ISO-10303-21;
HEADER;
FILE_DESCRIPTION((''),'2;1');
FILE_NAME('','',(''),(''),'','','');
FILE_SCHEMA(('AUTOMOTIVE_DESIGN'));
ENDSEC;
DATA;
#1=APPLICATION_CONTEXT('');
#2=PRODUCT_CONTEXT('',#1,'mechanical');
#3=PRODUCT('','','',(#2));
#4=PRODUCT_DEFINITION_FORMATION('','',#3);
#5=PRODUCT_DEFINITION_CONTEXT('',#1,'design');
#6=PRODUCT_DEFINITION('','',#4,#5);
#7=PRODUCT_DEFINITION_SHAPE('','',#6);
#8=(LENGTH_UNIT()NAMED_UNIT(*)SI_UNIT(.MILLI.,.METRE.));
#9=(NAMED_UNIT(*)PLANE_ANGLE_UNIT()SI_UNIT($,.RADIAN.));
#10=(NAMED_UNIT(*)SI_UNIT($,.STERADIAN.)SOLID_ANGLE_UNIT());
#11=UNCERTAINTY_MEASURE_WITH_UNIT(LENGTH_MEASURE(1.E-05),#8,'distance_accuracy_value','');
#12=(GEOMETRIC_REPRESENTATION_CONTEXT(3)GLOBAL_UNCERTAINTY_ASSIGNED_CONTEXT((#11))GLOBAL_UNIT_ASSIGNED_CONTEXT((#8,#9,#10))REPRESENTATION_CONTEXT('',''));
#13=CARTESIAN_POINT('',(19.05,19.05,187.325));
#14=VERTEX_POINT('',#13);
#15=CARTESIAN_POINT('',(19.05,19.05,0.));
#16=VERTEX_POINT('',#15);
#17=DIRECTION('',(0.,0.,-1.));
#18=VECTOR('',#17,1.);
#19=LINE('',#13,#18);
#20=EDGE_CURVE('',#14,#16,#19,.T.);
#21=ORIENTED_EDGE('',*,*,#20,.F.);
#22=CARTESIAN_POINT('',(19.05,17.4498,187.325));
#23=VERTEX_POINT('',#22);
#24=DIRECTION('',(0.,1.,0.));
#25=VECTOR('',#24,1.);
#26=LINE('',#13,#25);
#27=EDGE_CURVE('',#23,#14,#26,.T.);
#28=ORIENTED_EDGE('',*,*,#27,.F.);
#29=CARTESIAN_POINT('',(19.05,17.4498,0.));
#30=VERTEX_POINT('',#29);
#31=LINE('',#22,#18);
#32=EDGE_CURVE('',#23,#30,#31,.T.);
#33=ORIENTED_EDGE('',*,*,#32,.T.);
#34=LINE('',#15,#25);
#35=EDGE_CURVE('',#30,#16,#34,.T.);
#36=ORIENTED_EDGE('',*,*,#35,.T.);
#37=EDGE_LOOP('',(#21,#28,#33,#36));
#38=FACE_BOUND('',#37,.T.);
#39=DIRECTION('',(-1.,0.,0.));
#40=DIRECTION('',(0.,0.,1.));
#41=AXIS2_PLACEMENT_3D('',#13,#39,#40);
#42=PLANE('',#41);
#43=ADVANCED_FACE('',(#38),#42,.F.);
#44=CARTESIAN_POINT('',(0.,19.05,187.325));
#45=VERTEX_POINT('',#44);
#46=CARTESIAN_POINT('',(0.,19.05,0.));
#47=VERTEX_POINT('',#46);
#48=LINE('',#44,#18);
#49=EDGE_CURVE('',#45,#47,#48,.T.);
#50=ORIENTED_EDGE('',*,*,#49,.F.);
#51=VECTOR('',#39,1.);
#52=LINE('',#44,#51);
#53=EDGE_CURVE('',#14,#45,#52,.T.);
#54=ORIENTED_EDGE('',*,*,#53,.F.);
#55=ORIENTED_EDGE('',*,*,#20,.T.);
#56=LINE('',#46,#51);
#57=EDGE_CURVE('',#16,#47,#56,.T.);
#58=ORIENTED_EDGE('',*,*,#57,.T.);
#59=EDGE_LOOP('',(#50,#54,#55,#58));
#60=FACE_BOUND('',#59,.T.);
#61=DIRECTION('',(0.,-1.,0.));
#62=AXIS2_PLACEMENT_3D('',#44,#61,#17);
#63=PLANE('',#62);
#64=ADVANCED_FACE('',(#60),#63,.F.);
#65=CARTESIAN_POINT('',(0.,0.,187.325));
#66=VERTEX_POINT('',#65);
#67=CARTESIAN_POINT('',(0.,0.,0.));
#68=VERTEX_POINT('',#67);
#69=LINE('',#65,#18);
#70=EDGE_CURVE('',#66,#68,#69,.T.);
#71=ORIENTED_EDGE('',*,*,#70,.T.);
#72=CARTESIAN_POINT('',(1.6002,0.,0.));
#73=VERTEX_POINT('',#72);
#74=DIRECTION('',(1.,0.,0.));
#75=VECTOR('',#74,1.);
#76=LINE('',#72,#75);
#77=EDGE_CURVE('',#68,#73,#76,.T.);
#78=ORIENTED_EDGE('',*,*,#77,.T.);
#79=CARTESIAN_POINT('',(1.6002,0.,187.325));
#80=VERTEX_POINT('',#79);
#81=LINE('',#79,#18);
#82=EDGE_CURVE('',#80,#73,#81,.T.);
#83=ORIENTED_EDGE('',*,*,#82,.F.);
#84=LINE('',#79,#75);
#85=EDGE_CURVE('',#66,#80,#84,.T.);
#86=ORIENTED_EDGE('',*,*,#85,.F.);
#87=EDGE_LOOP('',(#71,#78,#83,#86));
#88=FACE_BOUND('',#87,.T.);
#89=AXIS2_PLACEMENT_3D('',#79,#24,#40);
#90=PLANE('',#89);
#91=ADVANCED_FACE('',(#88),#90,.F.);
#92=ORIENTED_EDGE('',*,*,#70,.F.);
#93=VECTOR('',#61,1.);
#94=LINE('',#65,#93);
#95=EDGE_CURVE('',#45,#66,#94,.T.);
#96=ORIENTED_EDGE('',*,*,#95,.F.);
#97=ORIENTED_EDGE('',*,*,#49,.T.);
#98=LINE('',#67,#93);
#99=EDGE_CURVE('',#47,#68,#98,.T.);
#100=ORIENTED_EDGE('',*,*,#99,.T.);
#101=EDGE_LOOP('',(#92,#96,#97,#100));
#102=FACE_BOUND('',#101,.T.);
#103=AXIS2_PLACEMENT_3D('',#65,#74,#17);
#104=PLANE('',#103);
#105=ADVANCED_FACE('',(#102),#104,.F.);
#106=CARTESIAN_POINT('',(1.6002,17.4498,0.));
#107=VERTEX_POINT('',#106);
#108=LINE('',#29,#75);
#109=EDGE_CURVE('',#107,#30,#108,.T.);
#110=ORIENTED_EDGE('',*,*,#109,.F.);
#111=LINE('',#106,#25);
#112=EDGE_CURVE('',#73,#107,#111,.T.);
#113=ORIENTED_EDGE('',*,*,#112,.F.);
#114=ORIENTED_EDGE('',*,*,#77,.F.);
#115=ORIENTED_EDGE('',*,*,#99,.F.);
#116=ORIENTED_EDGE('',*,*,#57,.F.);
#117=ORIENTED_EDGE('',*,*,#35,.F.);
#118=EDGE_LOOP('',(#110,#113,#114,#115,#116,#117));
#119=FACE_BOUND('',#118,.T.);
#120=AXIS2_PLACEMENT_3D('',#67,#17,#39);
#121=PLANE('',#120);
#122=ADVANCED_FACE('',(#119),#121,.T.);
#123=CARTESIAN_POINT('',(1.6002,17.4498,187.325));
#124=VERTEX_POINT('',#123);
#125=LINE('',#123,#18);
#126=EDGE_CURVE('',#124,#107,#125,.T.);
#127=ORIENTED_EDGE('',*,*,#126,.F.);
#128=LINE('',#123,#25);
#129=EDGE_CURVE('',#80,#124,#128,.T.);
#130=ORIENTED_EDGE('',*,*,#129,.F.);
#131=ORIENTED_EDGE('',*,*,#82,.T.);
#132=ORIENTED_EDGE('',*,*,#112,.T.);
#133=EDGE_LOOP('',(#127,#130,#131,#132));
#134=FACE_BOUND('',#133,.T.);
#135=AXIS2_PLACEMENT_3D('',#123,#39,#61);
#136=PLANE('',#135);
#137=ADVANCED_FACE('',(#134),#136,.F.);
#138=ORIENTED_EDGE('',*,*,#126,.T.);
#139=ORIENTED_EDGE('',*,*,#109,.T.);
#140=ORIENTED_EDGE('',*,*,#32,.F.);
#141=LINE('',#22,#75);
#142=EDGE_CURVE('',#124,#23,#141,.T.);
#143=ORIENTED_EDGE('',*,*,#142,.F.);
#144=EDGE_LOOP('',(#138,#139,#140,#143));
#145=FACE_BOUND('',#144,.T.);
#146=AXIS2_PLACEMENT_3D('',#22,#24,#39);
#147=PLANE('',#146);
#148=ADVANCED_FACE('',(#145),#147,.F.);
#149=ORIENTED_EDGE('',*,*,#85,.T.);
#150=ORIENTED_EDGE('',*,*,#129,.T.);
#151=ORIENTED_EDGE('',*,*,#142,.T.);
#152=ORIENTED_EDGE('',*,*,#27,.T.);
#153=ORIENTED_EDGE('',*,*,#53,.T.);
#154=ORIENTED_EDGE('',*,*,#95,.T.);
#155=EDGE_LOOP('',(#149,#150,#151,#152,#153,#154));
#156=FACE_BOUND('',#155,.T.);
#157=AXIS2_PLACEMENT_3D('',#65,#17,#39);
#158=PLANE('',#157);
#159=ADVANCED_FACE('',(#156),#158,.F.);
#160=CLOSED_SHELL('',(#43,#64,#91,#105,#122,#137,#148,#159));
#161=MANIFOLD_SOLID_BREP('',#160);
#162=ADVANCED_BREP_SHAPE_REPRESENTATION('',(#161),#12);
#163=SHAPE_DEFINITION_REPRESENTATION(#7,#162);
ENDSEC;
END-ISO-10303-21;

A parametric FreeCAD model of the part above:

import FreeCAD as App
import Part
import Sketcher
from FreeCAD import Vector
Q = App.Units.Quantity


def add_polygon(sketch, points):
    """Adds a closed chain of lines whose ends are joined by coincident constraints."""
    first, n = sketch.GeometryCount, len(points)
    for a, b in zip(points, points[1:] + points[:1]):
        sketch.addGeometry(Part.LineSegment(App.Vector(*a, 0), App.Vector(*b, 0)), False)
    for i in range(n):
        sketch.addConstraint(Sketcher.Constraint("Coincident", first + i, 2, first + (i + 1) % n, 1))

doc = App.newDocument("Part")
body = doc.addObject("PartDesign::Body", "Body")

# Sketch on XY plane
sketch1 = body.newObject("Sketcher::SketchObject", "Sketch")
sketch1.AttachmentSupport = (doc.getObject("XY_Plane"), [""])
sketch1.MapMode = "FlatFace"
add_polygon(sketch1, [(0, 19.1), (0, 0), (1.6, 0), (1.6, 17.4), (19.1, 17.4), (19.1, 19.1)])  # lines 0-5
sketch1.addConstraint([
    Sketcher.Constraint("Vertical", 0),
    Sketcher.Constraint("Horizontal", 1),
    Sketcher.Constraint("Vertical", 2),
    Sketcher.Constraint("Horizontal", 3),
    Sketcher.Constraint("Vertical", 4),
    Sketcher.Constraint("Horizontal", 5),
    Sketcher.Constraint("Coincident", 0, 2, -1, 1),
    Sketcher.Constraint("Equal", 5, 0),
    Sketcher.Constraint("Equal", 3, 2),
    Sketcher.Constraint("DistanceX", 5, 2, 5, 1, Q("0.75 in")),
    Sketcher.Constraint("DistanceX", 1, 1, 1, 2, Q("0.063 in")),
])
pad1 = body.newObject("PartDesign::Pad", "Pad")
pad1.Profile = sketch1
pad1.Length = Q("7.375 in")

doc.recompute()
